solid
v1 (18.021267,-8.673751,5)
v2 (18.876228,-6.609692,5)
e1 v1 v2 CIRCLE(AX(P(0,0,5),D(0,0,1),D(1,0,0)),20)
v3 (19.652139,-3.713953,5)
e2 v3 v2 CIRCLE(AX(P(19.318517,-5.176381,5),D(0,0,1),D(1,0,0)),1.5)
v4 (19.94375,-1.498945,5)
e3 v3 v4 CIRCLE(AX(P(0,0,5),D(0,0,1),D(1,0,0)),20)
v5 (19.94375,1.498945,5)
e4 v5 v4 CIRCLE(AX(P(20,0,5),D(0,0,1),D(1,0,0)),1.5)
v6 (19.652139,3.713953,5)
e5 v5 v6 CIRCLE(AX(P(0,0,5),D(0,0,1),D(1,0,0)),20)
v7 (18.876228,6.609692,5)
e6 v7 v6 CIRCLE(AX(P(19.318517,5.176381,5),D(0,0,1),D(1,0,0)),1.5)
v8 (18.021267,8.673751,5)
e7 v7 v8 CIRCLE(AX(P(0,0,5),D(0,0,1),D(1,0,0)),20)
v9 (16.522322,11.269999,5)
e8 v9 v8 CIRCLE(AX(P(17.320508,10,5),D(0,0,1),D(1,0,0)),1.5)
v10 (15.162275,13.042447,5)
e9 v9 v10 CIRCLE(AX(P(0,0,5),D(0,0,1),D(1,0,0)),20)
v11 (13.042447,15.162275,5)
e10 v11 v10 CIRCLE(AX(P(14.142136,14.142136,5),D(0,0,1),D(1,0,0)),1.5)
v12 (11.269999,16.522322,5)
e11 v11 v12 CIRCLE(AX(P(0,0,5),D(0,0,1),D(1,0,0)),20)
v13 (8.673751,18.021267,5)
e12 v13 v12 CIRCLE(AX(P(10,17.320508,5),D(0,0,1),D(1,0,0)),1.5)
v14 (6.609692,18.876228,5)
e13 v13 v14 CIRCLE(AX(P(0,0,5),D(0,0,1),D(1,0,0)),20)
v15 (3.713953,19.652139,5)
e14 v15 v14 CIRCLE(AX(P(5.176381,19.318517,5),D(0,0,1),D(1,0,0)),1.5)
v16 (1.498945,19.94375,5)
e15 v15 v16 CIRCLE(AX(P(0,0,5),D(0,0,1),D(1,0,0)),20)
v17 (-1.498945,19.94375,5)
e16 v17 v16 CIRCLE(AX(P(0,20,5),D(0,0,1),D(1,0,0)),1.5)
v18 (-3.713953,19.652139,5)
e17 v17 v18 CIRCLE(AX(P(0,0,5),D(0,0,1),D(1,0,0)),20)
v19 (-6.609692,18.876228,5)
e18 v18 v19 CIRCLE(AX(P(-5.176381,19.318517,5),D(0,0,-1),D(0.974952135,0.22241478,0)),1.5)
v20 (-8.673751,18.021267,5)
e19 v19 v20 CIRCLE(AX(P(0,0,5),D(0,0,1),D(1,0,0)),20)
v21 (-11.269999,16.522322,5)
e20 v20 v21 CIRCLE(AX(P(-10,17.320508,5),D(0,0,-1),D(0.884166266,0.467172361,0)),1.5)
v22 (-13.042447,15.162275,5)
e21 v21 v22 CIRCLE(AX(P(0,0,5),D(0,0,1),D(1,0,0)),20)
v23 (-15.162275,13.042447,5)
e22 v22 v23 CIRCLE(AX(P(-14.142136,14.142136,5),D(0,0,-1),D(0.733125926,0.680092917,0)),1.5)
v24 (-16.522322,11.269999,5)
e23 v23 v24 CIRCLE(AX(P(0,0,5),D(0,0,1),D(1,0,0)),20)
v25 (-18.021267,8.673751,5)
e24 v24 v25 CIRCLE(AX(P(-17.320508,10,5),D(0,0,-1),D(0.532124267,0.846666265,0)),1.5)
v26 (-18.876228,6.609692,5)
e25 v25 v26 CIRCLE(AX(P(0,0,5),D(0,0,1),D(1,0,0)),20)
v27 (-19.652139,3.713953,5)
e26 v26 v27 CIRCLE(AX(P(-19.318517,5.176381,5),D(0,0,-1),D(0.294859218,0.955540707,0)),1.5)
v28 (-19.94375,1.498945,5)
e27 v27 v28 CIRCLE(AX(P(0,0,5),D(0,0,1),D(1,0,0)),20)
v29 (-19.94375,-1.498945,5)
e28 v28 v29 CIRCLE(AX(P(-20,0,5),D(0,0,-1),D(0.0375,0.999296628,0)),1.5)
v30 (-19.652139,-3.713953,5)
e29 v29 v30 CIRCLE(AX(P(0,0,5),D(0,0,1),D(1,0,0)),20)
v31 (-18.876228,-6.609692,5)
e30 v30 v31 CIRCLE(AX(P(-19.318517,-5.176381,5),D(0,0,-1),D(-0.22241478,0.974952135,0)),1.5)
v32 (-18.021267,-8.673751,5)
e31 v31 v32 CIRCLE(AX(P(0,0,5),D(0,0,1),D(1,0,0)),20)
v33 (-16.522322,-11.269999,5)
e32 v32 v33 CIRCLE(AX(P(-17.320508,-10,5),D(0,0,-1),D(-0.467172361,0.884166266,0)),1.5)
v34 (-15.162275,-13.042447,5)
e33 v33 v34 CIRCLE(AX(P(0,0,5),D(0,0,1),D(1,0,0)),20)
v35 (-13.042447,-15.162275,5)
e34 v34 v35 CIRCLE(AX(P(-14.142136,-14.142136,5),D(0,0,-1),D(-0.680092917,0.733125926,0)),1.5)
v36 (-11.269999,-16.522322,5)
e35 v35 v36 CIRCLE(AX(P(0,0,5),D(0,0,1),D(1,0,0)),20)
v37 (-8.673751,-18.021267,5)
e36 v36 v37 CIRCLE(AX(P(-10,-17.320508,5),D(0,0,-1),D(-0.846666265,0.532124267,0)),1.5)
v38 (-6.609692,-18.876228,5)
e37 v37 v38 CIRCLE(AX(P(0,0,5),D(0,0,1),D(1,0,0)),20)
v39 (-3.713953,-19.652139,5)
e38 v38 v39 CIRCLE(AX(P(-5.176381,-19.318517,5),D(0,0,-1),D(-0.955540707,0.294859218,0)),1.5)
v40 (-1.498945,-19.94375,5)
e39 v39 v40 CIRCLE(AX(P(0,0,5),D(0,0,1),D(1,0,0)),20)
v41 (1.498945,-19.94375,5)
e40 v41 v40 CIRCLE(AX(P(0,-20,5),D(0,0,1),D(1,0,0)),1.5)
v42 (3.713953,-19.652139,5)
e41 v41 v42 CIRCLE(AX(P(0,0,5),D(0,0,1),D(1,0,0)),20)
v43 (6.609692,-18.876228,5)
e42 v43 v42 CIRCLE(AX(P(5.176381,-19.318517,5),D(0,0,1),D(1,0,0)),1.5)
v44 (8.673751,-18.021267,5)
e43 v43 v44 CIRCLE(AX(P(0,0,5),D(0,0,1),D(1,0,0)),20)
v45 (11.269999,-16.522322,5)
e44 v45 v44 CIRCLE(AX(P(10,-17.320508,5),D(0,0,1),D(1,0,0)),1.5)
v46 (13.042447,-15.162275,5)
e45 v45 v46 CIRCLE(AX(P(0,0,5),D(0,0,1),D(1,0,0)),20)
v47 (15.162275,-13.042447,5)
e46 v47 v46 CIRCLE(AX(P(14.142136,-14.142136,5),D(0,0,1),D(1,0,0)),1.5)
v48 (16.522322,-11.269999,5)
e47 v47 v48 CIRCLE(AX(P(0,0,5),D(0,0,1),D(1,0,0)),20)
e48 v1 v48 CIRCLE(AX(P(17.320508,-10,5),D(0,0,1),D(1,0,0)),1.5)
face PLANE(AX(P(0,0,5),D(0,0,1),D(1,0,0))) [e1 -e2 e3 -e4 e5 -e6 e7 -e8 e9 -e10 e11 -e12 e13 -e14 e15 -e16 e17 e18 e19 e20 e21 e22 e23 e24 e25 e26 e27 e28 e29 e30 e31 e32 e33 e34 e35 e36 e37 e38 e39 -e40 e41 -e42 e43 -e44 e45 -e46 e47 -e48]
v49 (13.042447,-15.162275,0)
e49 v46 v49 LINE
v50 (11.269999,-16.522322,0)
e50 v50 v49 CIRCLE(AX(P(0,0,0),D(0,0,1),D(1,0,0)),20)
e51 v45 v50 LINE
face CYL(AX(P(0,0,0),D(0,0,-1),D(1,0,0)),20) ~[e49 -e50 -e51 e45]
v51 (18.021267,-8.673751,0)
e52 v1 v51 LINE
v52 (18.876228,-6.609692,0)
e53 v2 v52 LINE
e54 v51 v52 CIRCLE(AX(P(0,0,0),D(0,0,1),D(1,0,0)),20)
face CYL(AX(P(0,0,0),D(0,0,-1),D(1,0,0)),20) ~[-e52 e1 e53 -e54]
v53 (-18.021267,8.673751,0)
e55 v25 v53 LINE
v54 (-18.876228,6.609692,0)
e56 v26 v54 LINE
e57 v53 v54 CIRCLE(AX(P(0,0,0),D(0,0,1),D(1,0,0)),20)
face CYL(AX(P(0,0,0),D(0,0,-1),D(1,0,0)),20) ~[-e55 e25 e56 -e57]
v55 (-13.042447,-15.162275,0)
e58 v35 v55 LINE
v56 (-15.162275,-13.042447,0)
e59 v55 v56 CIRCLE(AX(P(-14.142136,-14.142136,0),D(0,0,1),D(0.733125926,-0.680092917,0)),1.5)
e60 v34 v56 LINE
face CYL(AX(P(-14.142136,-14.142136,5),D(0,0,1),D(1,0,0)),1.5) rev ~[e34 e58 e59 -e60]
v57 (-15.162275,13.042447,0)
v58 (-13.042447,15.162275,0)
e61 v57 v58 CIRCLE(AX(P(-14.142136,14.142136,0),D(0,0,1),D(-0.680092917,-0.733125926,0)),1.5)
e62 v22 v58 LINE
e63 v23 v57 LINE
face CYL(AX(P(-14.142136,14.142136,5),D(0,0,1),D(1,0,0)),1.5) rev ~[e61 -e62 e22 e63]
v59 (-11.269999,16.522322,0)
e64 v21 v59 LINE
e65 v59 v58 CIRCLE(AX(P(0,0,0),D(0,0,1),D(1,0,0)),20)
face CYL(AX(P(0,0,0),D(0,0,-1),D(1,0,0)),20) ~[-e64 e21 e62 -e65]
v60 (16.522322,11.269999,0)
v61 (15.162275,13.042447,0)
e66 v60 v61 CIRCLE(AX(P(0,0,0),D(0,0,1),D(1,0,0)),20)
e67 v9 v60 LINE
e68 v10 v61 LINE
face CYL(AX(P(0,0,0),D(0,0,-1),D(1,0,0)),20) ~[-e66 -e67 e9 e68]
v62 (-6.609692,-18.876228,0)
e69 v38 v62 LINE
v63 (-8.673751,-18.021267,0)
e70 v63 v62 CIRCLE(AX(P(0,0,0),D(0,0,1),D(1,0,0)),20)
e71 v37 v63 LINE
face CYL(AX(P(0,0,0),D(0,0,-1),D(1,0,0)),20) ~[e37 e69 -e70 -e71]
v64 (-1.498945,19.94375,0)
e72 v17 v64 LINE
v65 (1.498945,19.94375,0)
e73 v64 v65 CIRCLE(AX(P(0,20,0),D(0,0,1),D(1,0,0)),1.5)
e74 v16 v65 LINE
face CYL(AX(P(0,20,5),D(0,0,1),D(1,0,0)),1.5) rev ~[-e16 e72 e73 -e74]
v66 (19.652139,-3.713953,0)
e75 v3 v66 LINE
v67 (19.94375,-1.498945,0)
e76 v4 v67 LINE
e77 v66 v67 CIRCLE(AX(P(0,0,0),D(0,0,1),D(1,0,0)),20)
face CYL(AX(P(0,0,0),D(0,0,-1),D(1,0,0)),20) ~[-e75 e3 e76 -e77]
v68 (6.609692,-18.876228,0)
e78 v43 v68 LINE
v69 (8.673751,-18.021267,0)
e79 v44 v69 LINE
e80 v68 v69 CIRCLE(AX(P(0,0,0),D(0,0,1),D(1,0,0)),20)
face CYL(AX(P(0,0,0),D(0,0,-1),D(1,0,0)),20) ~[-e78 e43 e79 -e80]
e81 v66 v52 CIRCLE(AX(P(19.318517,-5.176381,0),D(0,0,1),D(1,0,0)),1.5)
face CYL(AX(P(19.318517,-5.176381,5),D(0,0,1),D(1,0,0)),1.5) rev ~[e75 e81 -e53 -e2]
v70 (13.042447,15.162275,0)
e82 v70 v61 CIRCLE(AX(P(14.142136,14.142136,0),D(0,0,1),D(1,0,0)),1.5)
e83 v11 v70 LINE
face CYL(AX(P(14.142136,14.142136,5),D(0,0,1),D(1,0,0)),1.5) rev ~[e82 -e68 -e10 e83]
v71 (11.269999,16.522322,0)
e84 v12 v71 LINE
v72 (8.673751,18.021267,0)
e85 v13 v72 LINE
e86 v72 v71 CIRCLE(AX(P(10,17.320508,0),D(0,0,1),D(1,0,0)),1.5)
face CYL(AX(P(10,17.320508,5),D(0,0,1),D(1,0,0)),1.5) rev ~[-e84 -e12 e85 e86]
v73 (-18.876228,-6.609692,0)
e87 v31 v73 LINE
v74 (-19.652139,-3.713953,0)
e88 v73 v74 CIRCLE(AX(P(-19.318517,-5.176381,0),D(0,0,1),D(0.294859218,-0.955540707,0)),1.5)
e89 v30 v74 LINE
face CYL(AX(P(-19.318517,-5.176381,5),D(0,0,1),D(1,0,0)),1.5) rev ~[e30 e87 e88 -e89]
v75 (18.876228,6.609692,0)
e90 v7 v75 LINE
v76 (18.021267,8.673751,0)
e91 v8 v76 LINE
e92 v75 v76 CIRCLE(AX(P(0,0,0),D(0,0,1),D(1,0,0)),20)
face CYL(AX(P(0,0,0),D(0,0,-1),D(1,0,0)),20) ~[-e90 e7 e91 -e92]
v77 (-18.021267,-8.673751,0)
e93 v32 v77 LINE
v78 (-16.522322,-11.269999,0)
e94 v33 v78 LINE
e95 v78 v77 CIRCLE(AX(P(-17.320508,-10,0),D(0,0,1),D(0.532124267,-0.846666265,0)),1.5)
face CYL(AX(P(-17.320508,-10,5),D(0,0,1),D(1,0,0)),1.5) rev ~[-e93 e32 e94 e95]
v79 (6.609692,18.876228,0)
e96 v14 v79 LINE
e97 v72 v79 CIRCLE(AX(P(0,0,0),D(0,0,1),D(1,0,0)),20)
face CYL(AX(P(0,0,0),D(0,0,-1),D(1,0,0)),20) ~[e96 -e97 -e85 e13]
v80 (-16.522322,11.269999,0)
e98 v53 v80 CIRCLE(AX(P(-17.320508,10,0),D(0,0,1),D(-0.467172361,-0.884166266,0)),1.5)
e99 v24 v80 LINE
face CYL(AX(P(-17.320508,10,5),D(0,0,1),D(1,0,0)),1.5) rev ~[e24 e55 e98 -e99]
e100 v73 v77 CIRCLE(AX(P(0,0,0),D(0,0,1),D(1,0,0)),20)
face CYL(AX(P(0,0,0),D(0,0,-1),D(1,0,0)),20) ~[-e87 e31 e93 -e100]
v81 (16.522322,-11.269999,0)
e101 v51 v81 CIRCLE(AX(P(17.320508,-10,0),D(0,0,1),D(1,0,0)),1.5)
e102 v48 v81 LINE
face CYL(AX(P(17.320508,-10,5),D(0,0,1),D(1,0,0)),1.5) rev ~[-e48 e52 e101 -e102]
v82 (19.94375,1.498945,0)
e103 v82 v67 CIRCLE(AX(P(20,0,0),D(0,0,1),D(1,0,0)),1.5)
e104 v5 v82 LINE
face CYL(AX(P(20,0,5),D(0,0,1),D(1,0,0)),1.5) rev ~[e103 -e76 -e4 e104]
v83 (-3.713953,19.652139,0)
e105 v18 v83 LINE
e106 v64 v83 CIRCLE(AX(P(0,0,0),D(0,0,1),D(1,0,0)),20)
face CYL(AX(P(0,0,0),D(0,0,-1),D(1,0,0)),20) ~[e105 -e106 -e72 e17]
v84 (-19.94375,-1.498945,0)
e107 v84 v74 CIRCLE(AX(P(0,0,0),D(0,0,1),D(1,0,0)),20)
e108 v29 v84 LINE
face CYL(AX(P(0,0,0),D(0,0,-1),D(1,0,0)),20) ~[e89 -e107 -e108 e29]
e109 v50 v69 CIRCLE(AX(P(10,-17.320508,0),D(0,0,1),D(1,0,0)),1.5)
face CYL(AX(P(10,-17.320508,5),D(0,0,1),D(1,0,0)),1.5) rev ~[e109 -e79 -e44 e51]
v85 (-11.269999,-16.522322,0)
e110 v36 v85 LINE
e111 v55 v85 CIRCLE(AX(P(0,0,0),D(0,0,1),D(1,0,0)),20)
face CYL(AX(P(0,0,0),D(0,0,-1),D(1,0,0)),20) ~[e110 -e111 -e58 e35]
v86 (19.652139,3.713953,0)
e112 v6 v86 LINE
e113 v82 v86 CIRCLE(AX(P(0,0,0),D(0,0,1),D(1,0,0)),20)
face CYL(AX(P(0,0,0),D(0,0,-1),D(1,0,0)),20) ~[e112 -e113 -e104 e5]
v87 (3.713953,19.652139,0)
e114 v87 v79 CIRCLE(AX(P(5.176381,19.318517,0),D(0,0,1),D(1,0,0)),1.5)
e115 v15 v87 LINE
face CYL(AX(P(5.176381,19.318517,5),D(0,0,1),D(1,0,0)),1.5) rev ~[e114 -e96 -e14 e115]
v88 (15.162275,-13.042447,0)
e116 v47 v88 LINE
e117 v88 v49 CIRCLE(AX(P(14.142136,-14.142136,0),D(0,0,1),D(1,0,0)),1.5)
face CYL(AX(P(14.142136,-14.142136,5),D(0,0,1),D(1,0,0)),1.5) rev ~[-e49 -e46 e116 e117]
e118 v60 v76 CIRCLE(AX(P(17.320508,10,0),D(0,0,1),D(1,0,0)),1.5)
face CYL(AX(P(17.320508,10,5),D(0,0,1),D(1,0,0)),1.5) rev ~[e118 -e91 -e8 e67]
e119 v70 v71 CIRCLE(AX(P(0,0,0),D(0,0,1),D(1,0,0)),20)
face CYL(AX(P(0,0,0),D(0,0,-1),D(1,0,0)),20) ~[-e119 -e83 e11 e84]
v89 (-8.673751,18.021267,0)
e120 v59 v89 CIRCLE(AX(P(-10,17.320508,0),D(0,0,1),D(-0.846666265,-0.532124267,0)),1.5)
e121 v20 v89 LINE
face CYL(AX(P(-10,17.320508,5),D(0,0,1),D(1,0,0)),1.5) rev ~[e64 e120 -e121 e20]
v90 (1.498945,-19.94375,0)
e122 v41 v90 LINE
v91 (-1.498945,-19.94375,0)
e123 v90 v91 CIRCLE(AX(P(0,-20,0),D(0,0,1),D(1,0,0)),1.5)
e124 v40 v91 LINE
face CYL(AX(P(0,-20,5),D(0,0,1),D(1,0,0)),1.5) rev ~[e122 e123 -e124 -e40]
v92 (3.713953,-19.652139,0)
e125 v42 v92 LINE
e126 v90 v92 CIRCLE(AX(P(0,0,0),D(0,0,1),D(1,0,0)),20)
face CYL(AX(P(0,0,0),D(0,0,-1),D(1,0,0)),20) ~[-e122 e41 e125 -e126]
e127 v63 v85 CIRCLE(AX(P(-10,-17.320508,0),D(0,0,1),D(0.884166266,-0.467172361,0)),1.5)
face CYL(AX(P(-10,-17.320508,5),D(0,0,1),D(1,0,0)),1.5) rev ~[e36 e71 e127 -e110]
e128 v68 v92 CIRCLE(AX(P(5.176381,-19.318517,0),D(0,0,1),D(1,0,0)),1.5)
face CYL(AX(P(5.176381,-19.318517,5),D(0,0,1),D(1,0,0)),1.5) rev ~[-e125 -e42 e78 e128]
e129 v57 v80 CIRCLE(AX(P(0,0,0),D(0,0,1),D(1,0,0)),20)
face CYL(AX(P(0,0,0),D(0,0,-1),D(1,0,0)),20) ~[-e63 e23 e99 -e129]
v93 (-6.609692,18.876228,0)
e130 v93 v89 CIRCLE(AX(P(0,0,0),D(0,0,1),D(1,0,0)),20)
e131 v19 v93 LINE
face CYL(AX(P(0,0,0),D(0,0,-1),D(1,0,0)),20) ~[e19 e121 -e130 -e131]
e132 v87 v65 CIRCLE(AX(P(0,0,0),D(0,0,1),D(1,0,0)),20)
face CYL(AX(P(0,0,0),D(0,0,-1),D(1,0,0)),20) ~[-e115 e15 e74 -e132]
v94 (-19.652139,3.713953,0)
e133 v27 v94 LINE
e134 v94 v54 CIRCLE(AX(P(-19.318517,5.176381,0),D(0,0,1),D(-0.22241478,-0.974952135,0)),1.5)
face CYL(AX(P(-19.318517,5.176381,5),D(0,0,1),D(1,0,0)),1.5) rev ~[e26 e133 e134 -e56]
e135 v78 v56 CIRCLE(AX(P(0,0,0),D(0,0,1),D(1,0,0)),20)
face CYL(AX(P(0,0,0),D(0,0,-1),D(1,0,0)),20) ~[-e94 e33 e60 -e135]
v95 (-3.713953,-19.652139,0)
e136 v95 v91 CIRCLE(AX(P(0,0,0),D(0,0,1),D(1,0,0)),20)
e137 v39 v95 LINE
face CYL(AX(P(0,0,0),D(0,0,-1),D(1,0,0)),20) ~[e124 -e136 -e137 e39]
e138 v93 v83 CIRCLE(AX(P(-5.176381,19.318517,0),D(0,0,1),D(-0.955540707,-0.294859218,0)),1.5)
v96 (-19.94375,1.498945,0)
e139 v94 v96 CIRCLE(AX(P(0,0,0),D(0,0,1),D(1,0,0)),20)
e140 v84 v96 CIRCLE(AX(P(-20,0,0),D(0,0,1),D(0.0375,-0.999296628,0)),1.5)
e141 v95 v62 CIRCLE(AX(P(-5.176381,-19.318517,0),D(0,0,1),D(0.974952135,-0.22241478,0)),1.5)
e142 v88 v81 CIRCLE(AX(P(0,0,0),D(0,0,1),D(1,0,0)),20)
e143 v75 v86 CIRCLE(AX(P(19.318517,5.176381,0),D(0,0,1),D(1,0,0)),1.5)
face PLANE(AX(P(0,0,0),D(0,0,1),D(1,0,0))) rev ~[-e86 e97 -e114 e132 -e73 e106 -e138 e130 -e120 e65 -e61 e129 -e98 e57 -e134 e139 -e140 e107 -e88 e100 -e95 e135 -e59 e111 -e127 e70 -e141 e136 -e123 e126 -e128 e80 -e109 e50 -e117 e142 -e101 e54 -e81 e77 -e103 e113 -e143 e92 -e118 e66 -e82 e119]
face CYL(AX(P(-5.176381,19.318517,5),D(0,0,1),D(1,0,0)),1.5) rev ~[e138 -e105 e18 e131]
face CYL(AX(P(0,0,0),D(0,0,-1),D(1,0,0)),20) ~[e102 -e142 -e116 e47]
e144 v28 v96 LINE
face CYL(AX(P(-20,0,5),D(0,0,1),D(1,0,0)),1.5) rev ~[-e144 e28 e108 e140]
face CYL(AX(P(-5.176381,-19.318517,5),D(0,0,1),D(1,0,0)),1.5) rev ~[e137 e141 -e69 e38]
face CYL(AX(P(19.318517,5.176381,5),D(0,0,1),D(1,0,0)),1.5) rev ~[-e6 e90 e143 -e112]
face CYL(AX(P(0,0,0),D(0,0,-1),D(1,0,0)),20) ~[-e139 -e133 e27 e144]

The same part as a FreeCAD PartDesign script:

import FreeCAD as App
import Part
import Sketcher

V = App.Vector
Q = App.Units.Quantity

doc = App.newDocument("Part")
body = doc.addObject("PartDesign::Body", "Body")

# Sketch on XY plane
sketch1 = doc.addObject("Sketcher::SketchObject", "Sketch")
body.addObject(sketch1)
sketch1.AttachmentSupport = (doc.XY_Plane, [""])
sketch1.MapMode = "FlatFace"
sketch1.addGeometry(Part.Circle(V(0, 0, 0), V(0, 0, 1), 20), False)
sketch1.addConstraint(Sketcher.Constraint("Coincident", 0, 3, -1, 1))
sketch1.addConstraint(Sketcher.Constraint("Diameter", 0, Q("40 mm")))
pad1 = doc.addObject("PartDesign::Pad", "Pad")
body.addObject(pad1)
pad1.Profile = sketch1
pad1.Length = 5

# Sketch on XY plane
sketch2 = doc.addObject("Sketcher::SketchObject", "Sketch001")
body.addObject(sketch2)
sketch2.AttachmentSupport = (doc.XY_Plane, [""])
sketch2.MapMode = "FlatFace"
sketch2.AttachmentOffset = App.Placement(V(0, 0, 5), App.Rotation())
sketch2.addGeometry(Part.Circle(V(0, 20, 0), V(0, 0, 1), 1.5), False)
sketch2.addGeometry(Part.Circle(V(5.2, 19.3, 0), V(0, 0, 1), 1.5), False)
sketch2.addGeometry(Part.Circle(V(10, 17.3, 0), V(0, 0, 1), 1.5), False)
sketch2.addGeometry(Part.Circle(V(14.1, 14.1, 0), V(0, 0, 1), 1.5), False)
sketch2.addGeometry(Part.Circle(V(17.3, 10, 0), V(0, 0, 1), 1.5), False)
sketch2.addGeometry(Part.Circle(V(19.3, 5.2, 0), V(0, 0, 1), 1.5), False)
sketch2.addGeometry(Part.Circle(V(20, 0, 0), V(0, 0, 1), 1.5), False)
sketch2.addGeometry(Part.Circle(V(19.3, -5.2, 0), V(0, 0, 1), 1.5), False)
sketch2.addGeometry(Part.Circle(V(17.3, -10, 0), V(0, 0, 1), 1.5), False)
sketch2.addGeometry(Part.Circle(V(14.1, -14.1, 0), V(0, 0, 1), 1.5), False)
sketch2.addGeometry(Part.Circle(V(10, -17.3, 0), V(0, 0, 1), 1.5), False)
sketch2.addGeometry(Part.Circle(V(5.2, -19.3, 0), V(0, 0, 1), 1.5), False)
sketch2.addGeometry(Part.Circle(V(0, -20, 0), V(0, 0, 1), 1.5), False)
sketch2.addGeometry(Part.Circle(V(-5.2, -19.3, 0), V(0, 0, 1), 1.5), False)
sketch2.addGeometry(Part.Circle(V(-10, -17.3, 0), V(0, 0, 1), 1.5), False)
sketch2.addGeometry(Part.Circle(V(-14.1, -14.1, 0), V(0, 0, 1), 1.5), False)
sketch2.addGeometry(Part.Circle(V(-17.3, -10, 0), V(0, 0, 1), 1.5), False)
sketch2.addGeometry(Part.Circle(V(-19.3, -5.2, 0), V(0, 0, 1), 1.5), False)
sketch2.addGeometry(Part.Circle(V(-20, 0, 0), V(0, 0, 1), 1.5), False)
sketch2.addGeometry(Part.Circle(V(-19.3, 5.2, 0), V(0, 0, 1), 1.5), False)
sketch2.addGeometry(Part.Circle(V(-17.3, 10, 0), V(0, 0, 1), 1.5), False)
sketch2.addGeometry(Part.Circle(V(-14.1, 14.1, 0), V(0, 0, 1), 1.5), False)
sketch2.addGeometry(Part.Circle(V(-10, 17.3, 0), V(0, 0, 1), 1.5), False)
sketch2.addGeometry(Part.Circle(V(-5.2, 19.3, 0), V(0, 0, 1), 1.5), False)
sketch2.addConstraint(Sketcher.Constraint("Equal", 0, 1))
sketch2.addConstraint(Sketcher.Constraint("Equal", 1, 2))
sketch2.addConstraint(Sketcher.Constraint("Equal", 2, 3))
sketch2.addConstraint(Sketcher.Constraint("Equal", 3, 4))
sketch2.addConstraint(Sketcher.Constraint("Equal", 4, 5))
sketch2.addConstraint(Sketcher.Constraint("Equal", 5, 6))
sketch2.addConstraint(Sketcher.Constraint("Equal", 6, 7))
sketch2.addConstraint(Sketcher.Constraint("Equal", 7, 8))
sketch2.addConstraint(Sketcher.Constraint("Equal", 8, 9))
sketch2.addConstraint(Sketcher.Constraint("Equal", 9, 10))
sketch2.addConstraint(Sketcher.Constraint("Equal", 10, 11))
sketch2.addConstraint(Sketcher.Constraint("Equal", 11, 12))
sketch2.addConstraint(Sketcher.Constraint("Equal", 12, 13))
sketch2.addConstraint(Sketcher.Constraint("Equal", 13, 14))
sketch2.addConstraint(Sketcher.Constraint("Equal", 14, 15))
sketch2.addConstraint(Sketcher.Constraint("Equal", 15, 16))
sketch2.addConstraint(Sketcher.Constraint("Equal", 16, 17))
sketch2.addConstraint(Sketcher.Constraint("Equal", 17, 18))
sketch2.addConstraint(Sketcher.Constraint("Equal", 18, 19))
sketch2.addConstraint(Sketcher.Constraint("Equal", 19, 20))
sketch2.addConstraint(Sketcher.Constraint("Equal", 20, 21))
sketch2.addConstraint(Sketcher.Constraint("Equal", 21, 22))
sketch2.addConstraint(Sketcher.Constraint("Equal", 22, 23))
sketch2.addConstraint(Sketcher.Constraint("Symmetric", 0, 3, 12, 3, -1, 1))
sketch2.addConstraint(Sketcher.Constraint("Symmetric", 1, 3, 13, 3, -1, 1))
sketch2.addConstraint(Sketcher.Constraint("Symmetric", 2, 3, 14, 3, -1, 1))
sketch2.addConstraint(Sketcher.Constraint("Symmetric", 3, 3, 15, 3, -1, 1))
sketch2.addConstraint(Sketcher.Constraint("Symmetric", 4, 3, 16, 3, -1, 1))
sketch2.addConstraint(Sketcher.Constraint("Symmetric", 5, 3, 17, 3, -1, 1))
sketch2.addConstraint(Sketcher.Constraint("Symmetric", 6, 3, 18, 3, -1, 1))
sketch2.addConstraint(Sketcher.Constraint("Symmetric", 7, 3, 19, 3, -1, 1))
sketch2.addConstraint(Sketcher.Constraint("Symmetric", 8, 3, 20, 3, -1, 1))
sketch2.addConstraint(Sketcher.Constraint("Symmetric", 9, 3, 21, 3, -1, 1))
sketch2.addConstraint(Sketcher.Constraint("Symmetric", 10, 3, 22, 3, -1, 1))
sketch2.addConstraint(Sketcher.Constraint("Symmetric", 11, 3, 23, 3, -1, 1))
sketch2.addConstraint(Sketcher.Constraint("Symmetric", 11, 3, 13, 3, -2))
sketch2.addConstraint(Sketcher.Constraint("Symmetric", 10, 3, 14, 3, -2))
sketch2.addConstraint(Sketcher.Constraint("Symmetric", 9, 3, 15, 3, -2))
sketch2.addConstraint(Sketcher.Constraint("Symmetric", 8, 3, 16, 3, -2))
sketch2.addConstraint(Sketcher.Constraint("Symmetric", 7, 3, 17, 3, -2))
sketch2.addConstraint(Sketcher.Constraint("PointOnObject", 0, 3, -2))
sketch2.addConstraint(Sketcher.Constraint("PointOnObject", 6, 3, -1))
sketch2.addConstraint(Sketcher.Constraint("Diameter", 0, Q("3 mm")))
sketch2.addConstraint(Sketcher.Constraint("DistanceY", -1, 1, 0, 3, Q("20 mm")))
sketch2.addConstraint(Sketcher.Constraint("DistanceX", -1, 1, 2, 3, Q("10 mm")))
sketch2.addConstraint(Sketcher.Constraint("DistanceY", -1, 1, 4, 3, Q("10 mm")))
sketch2.addConstraint(Sketcher.Constraint("DistanceX", -1, 1, 6, 3, Q("20 mm")))
sketch2.addConstraint(Sketcher.Constraint("DistanceX", -1, 1, 1, 3, Q("5.176381 mm")))
sketch2.addConstraint(Sketcher.Constraint("DistanceY", -1, 1, 2, 3, Q("17.320508 mm")))
sketch2.addConstraint(Sketcher.Constraint("DistanceX", -1, 1, 4, 3, Q("17.320508 mm")))
sketch2.addConstraint(Sketcher.Constraint("DistanceY", -1, 1, 5, 3, Q("5.176381 mm")))
sketch2.addConstraint(Sketcher.Constraint("DistanceY", 2, 3, 1, 3, Q("1.998008 mm")))
sketch2.addConstraint(Sketcher.Constraint("DistanceY", 3, 3, 1, 3, Q("5.176381 mm")))
sketch2.addConstraint(Sketcher.Constraint("DistanceX", 4, 3, 5, 3, Q("1.998008 mm")))
sketch2.addConstraint(Sketcher.Constraint("DistanceX", 3, 3, 5, 3, Q("5.176381 mm")))
pocket1 = doc.addObject("PartDesign::Pocket", "Pocket")
body.addObject(pocket1)
pocket1.Profile = sketch2
pocket1.Length = 5

doc.recompute()
